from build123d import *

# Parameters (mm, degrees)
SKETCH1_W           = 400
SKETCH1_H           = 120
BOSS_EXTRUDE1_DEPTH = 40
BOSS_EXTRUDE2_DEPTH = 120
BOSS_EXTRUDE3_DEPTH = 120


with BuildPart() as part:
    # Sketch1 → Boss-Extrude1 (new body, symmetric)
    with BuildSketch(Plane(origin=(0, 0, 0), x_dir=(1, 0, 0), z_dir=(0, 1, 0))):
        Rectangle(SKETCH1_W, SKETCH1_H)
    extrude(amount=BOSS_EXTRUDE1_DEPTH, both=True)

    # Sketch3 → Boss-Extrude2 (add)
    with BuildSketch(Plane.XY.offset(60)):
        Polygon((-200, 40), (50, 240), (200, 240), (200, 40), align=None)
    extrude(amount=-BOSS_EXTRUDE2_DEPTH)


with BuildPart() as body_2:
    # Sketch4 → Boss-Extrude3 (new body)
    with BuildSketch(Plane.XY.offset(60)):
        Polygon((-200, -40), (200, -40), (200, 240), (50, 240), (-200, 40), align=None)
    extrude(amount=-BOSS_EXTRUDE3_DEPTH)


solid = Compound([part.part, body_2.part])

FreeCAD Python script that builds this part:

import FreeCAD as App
import Part
import Sketcher

V = App.Vector


def add_polygon(sketch, points):
    """Adds a closed chain of lines whose ends are joined by coincident constraints."""
    first, n = sketch.GeometryCount, len(points)
    for a, b in zip(points, points[1:] + points[:1]):
        sketch.addGeometry(Part.LineSegment(App.Vector(*a, 0), App.Vector(*b, 0)), False)
    for i in range(n):
        sketch.addConstraint(Sketcher.Constraint("Coincident", first + i, 2, first + (i + 1) % n, 1))

doc = App.newDocument("Part")
body = doc.addObject("PartDesign::Body", "Body")

# Sketch on XZ plane
sketch1 = doc.addObject("Sketcher::SketchObject", "Sketch")
body.addObject(sketch1)
sketch1.AttachmentSupport = (doc.XZ_Plane, [""])
sketch1.MapMode = "FlatFace"
add_polygon(sketch1, [(-200, -60), (-200, 60), (200, 60), (200, -60)])  # lines 0-3
sketch1.addConstraint([
    Sketcher.Constraint("Vertical", 0),
    Sketcher.Constraint("Horizontal", 1),
    Sketcher.Constraint("Vertical", 2),
    Sketcher.Constraint("Horizontal", 3),
    Sketcher.Constraint("Symmetric", 0, 2, 2, 2, -1, 1),
    Sketcher.Constraint("DistanceX", 1, 1, 1, 2, 400.0),
    Sketcher.Constraint("DistanceY", 0, 1, 0, 2, 120.0),
])
pad1 = doc.addObject("PartDesign::Pad", "Pad")
body.addObject(pad1)
pad1.Profile = sketch1
pad1.Length = 80
pad1.Midplane = True

# Sketch on XY plane
sketch2 = doc.addObject("Sketcher::SketchObject", "Sketch001")
body.addObject(sketch2)
sketch2.AttachmentSupport = (doc.XY_Plane, [""])
sketch2.MapMode = "FlatFace"
sketch2.AttachmentOffset = App.Placement(V(0, 0, 60), App.Rotation())
add_polygon(sketch2, [(50, 240), (-200, 40), (200, 40), (200, 240)])  # lines 0-3
sketch2.addConstraint([
    Sketcher.Constraint("Horizontal", 1),
    Sketcher.Constraint("Vertical", 2),
    Sketcher.Constraint("Horizontal", 3),
    Sketcher.Constraint("DistanceX", 1, 1, 1, 2, 400.0),
    Sketcher.Constraint("DistanceX", 3, 2, 3, 1, 150.0),
    Sketcher.Constraint("DistanceY", 2, 1, 2, 2, 200.0),
    Sketcher.Constraint("DistanceX", 0, 2, -1, 1, 200.0),
    Sketcher.Constraint("DistanceY", -1, 1, 0, 2, 40.0),
])
pad2 = doc.addObject("PartDesign::Pad", "Pad001")
body.addObject(pad2)
pad2.Profile = sketch2
pad2.Length = 120
pad2.Reversed = True
body2 = doc.addObject("PartDesign::Body", "Body001")

# Sketch on XY plane
sketch3 = doc.addObject("Sketcher::SketchObject", "Sketch002")
body2.addObject(sketch3)
sketch3.AttachmentSupport = (doc.getObject("XY_Plane001"), [""])
sketch3.MapMode = "FlatFace"
sketch3.AttachmentOffset = App.Placement(V(0, 0, 60), App.Rotation())
add_polygon(sketch3, [(-200, -40), (200, -40), (200, 240), (50, 240), (-200, 40)])  # lines 0-4
sketch3.addConstraint([
    Sketcher.Constraint("Horizontal", 0),
    Sketcher.Constraint("Vertical", 1),
    Sketcher.Constraint("Horizontal", 2),
    Sketcher.Constraint("Vertical", 4),
    Sketcher.Constraint("Symmetric", 0, 2, 3, 2, -1, 1),
    Sketcher.Constraint("DistanceX", 0, 1, 0, 2, 400.0),
    Sketcher.Constraint("DistanceX", 2, 2, 2, 1, 150.0),
    Sketcher.Constraint("DistanceY", 1, 1, 1, 2, 280.0),
    Sketcher.Constraint("DistanceY", 4, 2, 4, 1, 80.0),
])
pad3 = doc.addObject("PartDesign::Pad", "Pad002")
body2.addObject(pad3)
pad3.Profile = sketch3
pad3.Length = 120
pad3.Reversed = True

doc.recompute()
